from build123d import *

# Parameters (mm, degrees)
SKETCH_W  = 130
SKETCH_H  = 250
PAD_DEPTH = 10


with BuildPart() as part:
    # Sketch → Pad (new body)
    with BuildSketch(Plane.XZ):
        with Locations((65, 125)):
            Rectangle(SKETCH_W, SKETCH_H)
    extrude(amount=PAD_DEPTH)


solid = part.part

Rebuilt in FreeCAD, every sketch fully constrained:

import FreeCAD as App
import Part
import Sketcher
Q = App.Units.Quantity


def add_polygon(sketch, points):
    """Adds a closed chain of lines whose ends are joined by coincident constraints."""
    first, n = sketch.GeometryCount, len(points)
    for a, b in zip(points, points[1:] + points[:1]):
        sketch.addGeometry(Part.LineSegment(App.Vector(*a, 0), App.Vector(*b, 0)), False)
    for i in range(n):
        sketch.addConstraint(Sketcher.Constraint("Coincident", first + i, 2, first + (i + 1) % n, 1))

doc = App.newDocument("Part")
body = doc.addObject("PartDesign::Body", "Body")

sketch1 = body.newObject("Sketcher::SketchObject", "Sketch")
sketch1.AttachmentSupport = (doc.getObject("XZ_Plane"), [""])
sketch1.MapMode = "FlatFace"
add_polygon(sketch1, [(0, 250), (0, 0), (130, 0), (130, 250)])
sketch1.addConstraint([
    Sketcher.Constraint("Vertical", 0),
    Sketcher.Constraint("Horizontal", 1),
    Sketcher.Constraint("Vertical", 2),
    Sketcher.Constraint("Horizontal", 3),
    Sketcher.Constraint("Coincident", 0, 2, -1, 1),
    Sketcher.Constraint("DistanceX", 1, 1, 1, 2, Q("130 mm")),
    Sketcher.Constraint("DistanceY", 0, 2, 0, 1, Q("250 mm")),
])
pad1 = body.newObject("PartDesign::Pad", "Pad")
pad1.Profile = sketch1
pad1.Length = 10

doc.recompute()
